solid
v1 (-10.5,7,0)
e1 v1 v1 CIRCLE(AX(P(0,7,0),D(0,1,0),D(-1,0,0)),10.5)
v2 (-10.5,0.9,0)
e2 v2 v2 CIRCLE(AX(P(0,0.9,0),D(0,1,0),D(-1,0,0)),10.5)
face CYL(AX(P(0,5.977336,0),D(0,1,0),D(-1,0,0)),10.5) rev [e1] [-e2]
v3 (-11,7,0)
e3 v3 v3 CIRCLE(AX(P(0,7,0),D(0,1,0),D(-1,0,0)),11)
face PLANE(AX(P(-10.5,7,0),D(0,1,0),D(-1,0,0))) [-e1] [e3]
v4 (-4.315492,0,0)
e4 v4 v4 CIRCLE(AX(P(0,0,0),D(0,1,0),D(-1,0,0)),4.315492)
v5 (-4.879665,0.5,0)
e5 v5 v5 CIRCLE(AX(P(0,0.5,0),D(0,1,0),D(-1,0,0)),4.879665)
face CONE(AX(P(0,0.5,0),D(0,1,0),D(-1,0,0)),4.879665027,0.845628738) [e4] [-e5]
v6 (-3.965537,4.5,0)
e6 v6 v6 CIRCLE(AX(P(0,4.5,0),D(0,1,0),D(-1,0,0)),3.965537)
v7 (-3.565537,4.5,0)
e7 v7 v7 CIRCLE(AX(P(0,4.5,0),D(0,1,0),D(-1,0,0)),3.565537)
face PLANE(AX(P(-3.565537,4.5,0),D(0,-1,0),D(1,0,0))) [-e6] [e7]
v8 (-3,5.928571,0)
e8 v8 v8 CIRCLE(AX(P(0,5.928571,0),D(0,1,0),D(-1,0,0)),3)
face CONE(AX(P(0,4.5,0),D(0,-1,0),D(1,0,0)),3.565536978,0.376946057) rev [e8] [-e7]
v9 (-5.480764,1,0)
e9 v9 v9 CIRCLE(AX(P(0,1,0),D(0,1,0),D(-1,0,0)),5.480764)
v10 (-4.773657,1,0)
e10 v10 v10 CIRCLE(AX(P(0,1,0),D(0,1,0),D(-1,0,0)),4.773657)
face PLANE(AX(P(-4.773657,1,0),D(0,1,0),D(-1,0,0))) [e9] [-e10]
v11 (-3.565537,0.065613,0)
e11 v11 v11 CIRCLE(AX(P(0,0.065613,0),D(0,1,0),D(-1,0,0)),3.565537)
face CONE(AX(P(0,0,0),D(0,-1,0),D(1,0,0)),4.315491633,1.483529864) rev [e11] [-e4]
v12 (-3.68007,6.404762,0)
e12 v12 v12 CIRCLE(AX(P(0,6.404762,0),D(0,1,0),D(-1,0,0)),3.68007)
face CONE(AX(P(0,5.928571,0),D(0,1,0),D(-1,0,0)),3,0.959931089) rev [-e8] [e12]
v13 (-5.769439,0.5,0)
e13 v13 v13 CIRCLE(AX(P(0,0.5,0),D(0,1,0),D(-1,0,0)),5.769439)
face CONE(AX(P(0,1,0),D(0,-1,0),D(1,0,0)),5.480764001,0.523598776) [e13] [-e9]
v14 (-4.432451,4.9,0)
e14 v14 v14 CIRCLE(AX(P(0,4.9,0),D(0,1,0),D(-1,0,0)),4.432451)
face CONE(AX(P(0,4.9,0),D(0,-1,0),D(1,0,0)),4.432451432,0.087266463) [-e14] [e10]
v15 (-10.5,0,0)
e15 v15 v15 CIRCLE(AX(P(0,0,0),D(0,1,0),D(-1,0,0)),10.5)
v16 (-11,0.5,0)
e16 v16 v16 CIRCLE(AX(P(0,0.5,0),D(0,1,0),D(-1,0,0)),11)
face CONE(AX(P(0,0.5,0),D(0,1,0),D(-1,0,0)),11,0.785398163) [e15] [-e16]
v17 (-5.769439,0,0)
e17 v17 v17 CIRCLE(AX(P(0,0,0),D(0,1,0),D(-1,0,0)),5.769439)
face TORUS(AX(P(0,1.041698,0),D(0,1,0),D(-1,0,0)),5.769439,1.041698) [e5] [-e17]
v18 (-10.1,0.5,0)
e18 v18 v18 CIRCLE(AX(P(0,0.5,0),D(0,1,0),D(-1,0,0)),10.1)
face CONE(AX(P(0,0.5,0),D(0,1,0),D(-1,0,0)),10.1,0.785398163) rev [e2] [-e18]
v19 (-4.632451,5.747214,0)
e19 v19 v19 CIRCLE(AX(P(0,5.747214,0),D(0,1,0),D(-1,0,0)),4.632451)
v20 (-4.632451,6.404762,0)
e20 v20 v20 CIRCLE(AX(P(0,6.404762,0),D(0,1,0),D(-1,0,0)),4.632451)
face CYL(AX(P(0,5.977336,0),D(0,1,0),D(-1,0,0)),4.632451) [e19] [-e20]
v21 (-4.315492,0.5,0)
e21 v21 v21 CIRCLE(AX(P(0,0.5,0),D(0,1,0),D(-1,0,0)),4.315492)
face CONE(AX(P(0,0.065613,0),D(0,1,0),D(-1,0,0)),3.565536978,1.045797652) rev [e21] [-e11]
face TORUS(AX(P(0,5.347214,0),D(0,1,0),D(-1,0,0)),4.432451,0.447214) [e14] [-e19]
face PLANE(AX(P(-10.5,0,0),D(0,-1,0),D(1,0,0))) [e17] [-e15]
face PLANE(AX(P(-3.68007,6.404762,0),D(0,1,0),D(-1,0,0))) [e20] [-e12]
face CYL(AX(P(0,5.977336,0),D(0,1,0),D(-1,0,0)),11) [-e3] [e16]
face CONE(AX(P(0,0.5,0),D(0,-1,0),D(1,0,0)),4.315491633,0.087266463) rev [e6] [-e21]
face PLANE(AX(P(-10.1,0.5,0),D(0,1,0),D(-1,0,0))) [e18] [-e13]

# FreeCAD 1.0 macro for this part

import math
import FreeCAD as App
import Part
import Sketcher
Q = App.Units.Quantity

doc = App.newDocument("Part")
body = doc.addObject("PartDesign::Body", "Body")

# Sketch on XY plane
sketch1 = body.newObject("Sketcher::SketchObject", "Sketch")
sketch1.AttachmentSupport = (doc.getObject("XY_Plane"), [""])
sketch1.MapMode = "FlatFace"
sketch1.addGeometry([
    Part.LineSegment(App.Vector(-10.5, 0, 0), App.Vector(-5.77, 0, 0)),  # 0
    Part.ArcOfCircle(Part.Circle(App.Vector(-5.77, 1.04, 0), App.Vector(0, 0, 1), 1.04), math.radians(-90), math.radians(-31)),  # 1
    Part.LineSegment(App.Vector(-4.88, 0.5, 0), App.Vector(-4.32, 0, 0)),  # 2
    Part.LineSegment(App.Vector(-4.32, 0, 0), App.Vector(-3.57, 0.07, 0)),  # 3
    Part.LineSegment(App.Vector(-3.57, 0.07, 0), App.Vector(-4.32, 0.5, 0)),  # 4
    Part.LineSegment(App.Vector(-4.32, 0.5, 0), App.Vector(-3.97, 4.5, 0)),  # 5
    Part.LineSegment(App.Vector(-3.97, 4.5, 0), App.Vector(-3.57, 4.5, 0)),  # 6
    Part.LineSegment(App.Vector(-3.57, 4.5, 0), App.Vector(-3, 5.93, 0)),  # 7
    Part.LineSegment(App.Vector(-3, 5.93, 0), App.Vector(-3.68, 6.4, 0)),  # 8
    Part.LineSegment(App.Vector(-3.68, 6.4, 0), App.Vector(-4.63, 6.4, 0)),  # 9
    Part.LineSegment(App.Vector(-4.63, 6.4, 0), App.Vector(-4.63, 5.75, 0)),  # 10
    Part.ArcOfCircle(Part.Circle(App.Vector(-4.43, 5.35, 0), App.Vector(0, 0, 1), 0.45), math.radians(117), math.radians(270)),  # 11
    Part.LineSegment(App.Vector(-4.43, 4.9, 0), App.Vector(-4.77, 1, 0)),  # 12
    Part.LineSegment(App.Vector(-4.77, 1, 0), App.Vector(-5.48, 1, 0)),  # 13
    Part.LineSegment(App.Vector(-5.48, 1, 0), App.Vector(-5.77, 0.5, 0)),  # 14
    Part.LineSegment(App.Vector(-5.77, 0.5, 0), App.Vector(-10.1, 0.5, 0)),  # 15
    Part.LineSegment(App.Vector(-10.1, 0.5, 0), App.Vector(-10.5, 0.9, 0)),  # 16
    Part.LineSegment(App.Vector(-10.5, 0.9, 0), App.Vector(-10.5, 7, 0)),  # 17
    Part.LineSegment(App.Vector(-10.5, 7, 0), App.Vector(-11, 7, 0)),  # 18
    Part.LineSegment(App.Vector(-11, 7, 0), App.Vector(-11, 0.5, 0)),  # 19
    Part.LineSegment(App.Vector(-11, 0.5, 0), App.Vector(-10.5, 0, 0)),  # 20
], False)
sketch1.addConstraint([
    Sketcher.Constraint("Tangent", 0, 2, 1, 1),
    Sketcher.Constraint("Coincident", 1, 2, 2, 1),
    Sketcher.Constraint("Coincident", 2, 2, 3, 1),
    Sketcher.Constraint("Coincident", 3, 2, 4, 1),
    Sketcher.Constraint("Coincident", 4, 2, 5, 1),
    Sketcher.Constraint("Coincident", 5, 2, 6, 1),
    Sketcher.Constraint("Coincident", 6, 2, 7, 1),
    Sketcher.Constraint("Coincident", 7, 2, 8, 1),
    Sketcher.Constraint("Coincident", 8, 2, 9, 1),
    Sketcher.Constraint("Coincident", 9, 2, 10, 1),
    Sketcher.Constraint("Coincident", 10, 2, 11, 1),
    Sketcher.Constraint("Coincident", 11, 2, 12, 1),
    Sketcher.Constraint("Coincident", 12, 2, 13, 1),
    Sketcher.Constraint("Coincident", 13, 2, 14, 1),
    Sketcher.Constraint("Coincident", 14, 2, 15, 1),
    Sketcher.Constraint("Coincident", 15, 2, 16, 1),
    Sketcher.Constraint("Coincident", 16, 2, 17, 1),
    Sketcher.Constraint("Coincident", 17, 2, 18, 1),
    Sketcher.Constraint("Coincident", 18, 2, 19, 1),
    Sketcher.Constraint("Coincident", 19, 2, 20, 1),
    Sketcher.Constraint("Coincident", 20, 2, 0, 1),
    Sketcher.Constraint("Horizontal", 0),
    Sketcher.Constraint("Horizontal", 6),
    Sketcher.Constraint("Horizontal", 9),
    Sketcher.Constraint("Vertical", 10),
    Sketcher.Constraint("Horizontal", 13),
    Sketcher.Constraint("Horizontal", 15),
    Sketcher.Constraint("Vertical", 17),
    Sketcher.Constraint("Horizontal", 18),
    Sketcher.Constraint("Vertical", 19),
    Sketcher.Constraint("PointOnObject", 0, 2, -1),
    Sketcher.Constraint("PointOnObject", 2, 2, -1),
    Sketcher.Constraint("Parallel", 5, 12),
    Sketcher.Constraint("Parallel", 16, 20),
    Sketcher.Constraint("Horizontal", 1, 2, 4, 2),
    Sketcher.Constraint("Horizontal", 4, 2, 14, 2),
    Sketcher.Constraint("Horizontal", 15, 2, 19, 2),
    Sketcher.Constraint("Vertical", 2, 2, 4, 2),
    Sketcher.Constraint("Vertical", 3, 2, 6, 2),
    Sketcher.Constraint("Vertical", 0, 2, 14, 2),
    Sketcher.Constraint("Vertical", 17, 2, 20, 2),
    Sketcher.Constraint("Angle", 3, Q("5 deg")),
    Sketcher.Constraint("Angle", 5, Q("85 deg")),
    Sketcher.Constraint("Angle", 8, Q("145 deg")),
    Sketcher.Constraint("Angle", 14, Q("-120 deg")),
    Sketcher.Constraint("Angle", 16, Q("135 deg")),
    Sketcher.Constraint("DistanceX", 6, 1, 6, 2, 0.4),
    Sketcher.Constraint("DistanceX", 18, 2, 18, 1, 0.5),
    Sketcher.Constraint("DistanceY", 17, 1, 17, 2, 6.1),
    Sketcher.Constraint("DistanceY", 19, 2, 19, 1, 6.5),
    Sketcher.Constraint("DistanceX", 7, 2, -1, 1, 3.0),
    Sketcher.Constraint("DistanceY", -1, 1, 12, 2, 1.0),
    Sketcher.Constraint("DistanceX", 18, 2, -1, 1, 11.0),
    Sketcher.Constraint("DistanceY", 4, 2, 5, 2, 4.0),
    Sketcher.Constraint("DistanceY", -1, 1, 11, 2, 4.9),
    Sketcher.Constraint("DistanceX", 9, 2, 11, 3, 0.2),
    Sketcher.Constraint("DistanceY", 11, 3, 10, 2, 0.4),
    Sketcher.Constraint("DistanceX", 10, 2, 11, 2, 0.2),
    Sketcher.Constraint("Radius", 1, 1.041698),
    Sketcher.Constraint("DistanceX", 0, 1, 0, 2, 4.730561),
    Sketcher.Constraint("DistanceX", 9, 2, 9, 1, 0.952381),
    Sketcher.Constraint("DistanceY", 10, 2, 10, 1, 0.657548),
    Sketcher.Constraint("Distance", 2, 0.753851),
    Sketcher.Constraint("Distance", 7, 1.53644),
])
revolution = body.newObject("PartDesign::Revolution", "Revolution")
revolution.Profile = sketch1
revolution.ReferenceAxis = (sketch1, ["V_Axis"])
revolution.Angle = 360

doc.recompute()
